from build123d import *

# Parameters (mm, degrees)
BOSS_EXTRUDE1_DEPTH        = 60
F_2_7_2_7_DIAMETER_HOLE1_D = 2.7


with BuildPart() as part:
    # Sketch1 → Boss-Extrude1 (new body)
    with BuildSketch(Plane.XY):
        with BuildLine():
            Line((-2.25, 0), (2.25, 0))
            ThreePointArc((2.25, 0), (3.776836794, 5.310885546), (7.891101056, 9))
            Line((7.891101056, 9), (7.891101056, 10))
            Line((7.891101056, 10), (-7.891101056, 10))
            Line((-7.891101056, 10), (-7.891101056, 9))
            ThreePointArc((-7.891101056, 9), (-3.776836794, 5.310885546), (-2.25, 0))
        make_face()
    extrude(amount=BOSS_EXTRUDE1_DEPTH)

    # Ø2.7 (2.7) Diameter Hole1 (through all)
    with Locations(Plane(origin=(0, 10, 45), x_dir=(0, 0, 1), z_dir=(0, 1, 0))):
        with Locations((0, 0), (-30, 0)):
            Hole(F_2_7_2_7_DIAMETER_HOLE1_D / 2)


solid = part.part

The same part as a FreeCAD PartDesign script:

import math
import FreeCAD as App
import Part
import Sketcher

V = App.Vector
Q = App.Units.Quantity

doc = App.newDocument("Part")
params = doc.addObject("Spreadsheet::Sheet", "Params")
for row, (alias, value) in enumerate([
    ("sketch1_radius", "10 mm"),
    ("sketch1_height", "1 mm"),
    ("sketch1_width", "4.5 mm"),
    ("pad1_length", "60 mm"),
    ("sketch2_diameter", "2.7 mm"),
    ("hole_diameter", "2.7 mm"),
], start=1):
    params.set(f"A{row}", alias)
    params.set(f"B{row}", "=" + value)
    params.setAlias(f"B{row}", alias)

body = doc.addObject("PartDesign::Body", "Body")

sketch1 = body.newObject("Sketcher::SketchObject", "Sketch")
sketch1.AttachmentSupport = (doc.getObject("XY_Plane"), [""])
sketch1.MapMode = "FlatFace"
sketch1.addGeometry([
    Part.LineSegment(V(-2.2, 0, 0), V(2.2, 0, 0)),
    Part.ArcOfCircle(Part.Circle(V(12.3, 0, 0), V(0, 0, 1), 10), math.radians(116), math.radians(180)),
    Part.LineSegment(V(7.9, 9, 0), V(7.9, 10, 0)),
    Part.LineSegment(V(7.9, 10, 0), V(-7.9, 10, 0)),
    Part.LineSegment(V(-7.9, 10, 0), V(-7.9, 9, 0)),
    Part.ArcOfCircle(Part.Circle(V(-12.3, 0, 0), V(0, 0, 1), 10), math.radians(0), math.radians(64)),
], False)
sketch1.addConstraint([
    Sketcher.Constraint("Coincident", 0, 2, 1, 2),
    Sketcher.Constraint("Coincident", 1, 1, 2, 1),
    Sketcher.Constraint("Coincident", 2, 2, 3, 1),
    Sketcher.Constraint("Coincident", 3, 2, 4, 1),
    Sketcher.Constraint("Coincident", 4, 2, 5, 2),
    Sketcher.Constraint("Coincident", 5, 1, 0, 1),
    Sketcher.Constraint("Horizontal", 0),
    Sketcher.Constraint("Vertical", 2),
    Sketcher.Constraint("Horizontal", 3),
    Sketcher.Constraint("Vertical", 4),
    Sketcher.Constraint("Equal", 1, 5),
    Sketcher.Constraint("Symmetric", 1, 3, 5, 3, -1, 1),
    Sketcher.Constraint("Symmetric", 1, 1, 4, 2, -2),
    Sketcher.Constraint("PointOnObject", 0, 2, -1),
    Sketcher.Constraint("Radius", 1, Q("10 mm")),
    Sketcher.Constraint("DistanceY", 2, 1, 2, 2, Q("1 mm")),
    Sketcher.Constraint("DistanceX", 0, 1, 0, 2, Q("4.5 mm")),
    Sketcher.Constraint("DistanceY", -1, 1, 1, 1, Q("9 mm")),
])
sketch1.setExpression("Constraints[14]", "Params.sketch1_radius")
sketch1.setExpression("Constraints[15]", "Params.sketch1_height")
sketch1.setExpression("Constraints[16]", "Params.sketch1_width")
pad1 = body.newObject("PartDesign::Pad", "Pad")
pad1.Profile = sketch1
pad1.setExpression("Length", "Params.pad1_length")

sketch2 = body.newObject("Sketcher::SketchObject", "Sketch001")
sketch2.AttachmentSupport = (doc.getObject("XZ_Plane"), [""])
sketch2.MapMode = "FlatFace"
sketch2.AttachmentOffset = App.Placement(V(0, 0, -10), App.Rotation())
sketch2.addGeometry([
    Part.Circle(V(0, 45, 0), V(0, 0, 1), 1.4),
    Part.Circle(V(0, 15, 0), V(0, 0, 1), 1.4),
], False)
sketch2.addConstraint([
    Sketcher.Constraint("Equal", 0, 1),
    Sketcher.Constraint("PointOnObject", 0, 3, -2),
    Sketcher.Constraint("PointOnObject", 1, 3, -2),
    Sketcher.Constraint("Diameter", 0, Q("2.7 mm")),
    Sketcher.Constraint("DistanceY", -1, 1, 0, 3, Q("45 mm")),
    Sketcher.Constraint("DistanceY", -1, 1, 1, 3, Q("15 mm")),
])
sketch2.setExpression("Constraints[3]", "Params.sketch2_diameter")
doc.recompute()
hole = body.newObject("PartDesign::Hole", "Hole")
hole.Profile = sketch2
hole.ThreadType = "None"
hole.setExpression("Diameter", "Params.hole_diameter")
hole.DepthType = "ThroughAll"
hole.Reversed = True

doc.recompute()
